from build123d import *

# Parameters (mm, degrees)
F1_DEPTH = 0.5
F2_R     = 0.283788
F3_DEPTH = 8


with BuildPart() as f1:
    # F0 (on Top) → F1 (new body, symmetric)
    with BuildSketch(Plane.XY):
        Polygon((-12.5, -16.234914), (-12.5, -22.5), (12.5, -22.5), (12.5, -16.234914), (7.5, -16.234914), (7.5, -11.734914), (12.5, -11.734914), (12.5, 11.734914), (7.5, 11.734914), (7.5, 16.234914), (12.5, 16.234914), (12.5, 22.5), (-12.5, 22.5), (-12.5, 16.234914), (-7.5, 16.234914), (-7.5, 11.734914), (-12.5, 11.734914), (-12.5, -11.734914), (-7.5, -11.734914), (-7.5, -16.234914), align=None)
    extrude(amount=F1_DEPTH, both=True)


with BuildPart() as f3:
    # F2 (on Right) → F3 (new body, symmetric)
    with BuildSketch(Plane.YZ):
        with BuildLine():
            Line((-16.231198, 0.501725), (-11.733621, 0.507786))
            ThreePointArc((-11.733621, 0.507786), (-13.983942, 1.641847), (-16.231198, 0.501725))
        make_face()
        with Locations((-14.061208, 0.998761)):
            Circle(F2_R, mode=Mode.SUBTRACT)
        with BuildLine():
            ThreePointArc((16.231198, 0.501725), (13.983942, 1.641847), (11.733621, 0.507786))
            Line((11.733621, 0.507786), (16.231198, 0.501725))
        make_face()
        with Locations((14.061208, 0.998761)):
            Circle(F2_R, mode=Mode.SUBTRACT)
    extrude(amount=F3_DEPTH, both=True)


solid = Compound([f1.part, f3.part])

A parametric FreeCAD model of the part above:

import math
import FreeCAD as App
import Part
import Sketcher
from FreeCAD import Vector


def add_polygon(sketch, points):
    """Adds a closed chain of lines whose ends are joined by coincident constraints."""
    first, n = sketch.GeometryCount, len(points)
    for a, b in zip(points, points[1:] + points[:1]):
        sketch.addGeometry(Part.LineSegment(App.Vector(*a, 0), App.Vector(*b, 0)), False)
    for i in range(n):
        sketch.addConstraint(Sketcher.Constraint("Coincident", first + i, 2, first + (i + 1) % n, 1))

doc = App.newDocument("Part")
body = doc.addObject("PartDesign::Body", "Body")

# Sketch on XY plane
sketch1 = body.newObject("Sketcher::SketchObject", "Sketch")
sketch1.AttachmentSupport = (doc.getObject("XY_Plane"), [""])
sketch1.MapMode = "FlatFace"
add_polygon(sketch1, [(-12.5, -16.234914), (-12.5, -22.5), (12.5, -22.5), (12.5, -16.234914), (7.5, -16.234914), (7.5, -11.734914), (12.5, -11.734914), (12.5, 11.734914), (7.5, 11.734914), (7.5, 16.234914), (12.5, 16.234914), (12.5, 22.5), (-12.5, 22.5), (-12.5, 16.234914), (-7.5, 16.234914), (-7.5, 11.734914), (-12.5, 11.734914), (-12.5, -11.734914), (-7.5, -11.734914), (-7.5, -16.234914)])  # lines 0-19
sketch1.addConstraint(Sketcher.Constraint("Vertical", 0))
sketch1.addConstraint(Sketcher.Constraint("Horizontal", 1))
sketch1.addConstraint(Sketcher.Constraint("Vertical", 2))
sketch1.addConstraint(Sketcher.Constraint("Horizontal", 3))
sketch1.addConstraint(Sketcher.Constraint("Vertical", 4))
sketch1.addConstraint(Sketcher.Constraint("Horizontal", 5))
sketch1.addConstraint(Sketcher.Constraint("Vertical", 6))
sketch1.addConstraint(Sketcher.Constraint("Horizontal", 7))
sketch1.addConstraint(Sketcher.Constraint("Vertical", 8))
sketch1.addConstraint(Sketcher.Constraint("Horizontal", 9))
sketch1.addConstraint(Sketcher.Constraint("Vertical", 10))
sketch1.addConstraint(Sketcher.Constraint("Horizontal", 11))
sketch1.addConstraint(Sketcher.Constraint("Vertical", 12))
sketch1.addConstraint(Sketcher.Constraint("Horizontal", 13))
sketch1.addConstraint(Sketcher.Constraint("Vertical", 14))
sketch1.addConstraint(Sketcher.Constraint("Horizontal", 15))
sketch1.addConstraint(Sketcher.Constraint("Vertical", 16))
sketch1.addConstraint(Sketcher.Constraint("Horizontal", 17))
sketch1.addConstraint(Sketcher.Constraint("Vertical", 18))
sketch1.addConstraint(Sketcher.Constraint("Horizontal", 19))
sketch1.addConstraint(Sketcher.Constraint("Symmetric", 0, 2, 10, 2, -1, 1))
sketch1.addConstraint(Sketcher.Constraint("Symmetric", 2, 2, 12, 2, -1, 1))
sketch1.addConstraint(Sketcher.Constraint("Symmetric", 4, 2, 14, 2, -1, 1))
sketch1.addConstraint(Sketcher.Constraint("Symmetric", 6, 2, 16, 2, -1, 1))
sketch1.addConstraint(Sketcher.Constraint("Symmetric", 8, 2, 18, 2, -1, 1))
sketch1.addConstraint(Sketcher.Constraint("Symmetric", 9, 2, 12, 2, -2))
sketch1.addConstraint(Sketcher.Constraint("Symmetric", 7, 2, 14, 2, -2))
sketch1.addConstraint(Sketcher.Constraint("Vertical", 2, 2, 5, 2))
sketch1.addConstraint(Sketcher.Constraint("DistanceX", 1, 1, 1, 2, 25.0))
sketch1.addConstraint(Sketcher.Constraint("DistanceX", 3, 2, 3, 1, 5.0))
sketch1.addConstraint(Sketcher.Constraint("DistanceY", 4, 1, 4, 2, 4.5))
sketch1.addConstraint(Sketcher.Constraint("DistanceY", 0, 2, -1, 1, 22.5))
sketch1.addConstraint(Sketcher.Constraint("DistanceY", 0, 2, 0, 1, 6.265086))
pad1 = body.newObject("PartDesign::Pad", "Pad")
pad1.Profile = sketch1
pad1.Length = 1
pad1.Midplane = True
body2 = doc.addObject("PartDesign::Body", "Body001")
body2.AllowCompound = True

# Sketch on YZ plane
sketch2 = body2.newObject("Sketcher::SketchObject", "Sketch001")
sketch2.AttachmentSupport = (doc.getObject("YZ_Plane001"), [""])
sketch2.MapMode = "FlatFace"
sketch2.addGeometry(Part.LineSegment(Vector(-16.231198, 0.501725, 0), Vector(-11.733621, 0.507786, 0)), False)
sketch2.addGeometry(Part.ArcOfCircle(Part.Circle(Vector(-13.980179, -1.150376, 0), Vector(0, 0, 1), 2.792226), math.radians(36.430669), math.radians(143.723756)), False)
sketch2.addGeometry(Part.Circle(Vector(-14.061208, 0.998761, 0), Vector(0, 0, 1), 0.283788), False)
sketch2.addGeometry(Part.ArcOfCircle(Part.Circle(Vector(13.980179, -1.150376, 0), Vector(0, 0, 1), 2.792226), math.radians(36.276244), math.radians(143.569331)), False)
sketch2.addGeometry(Part.LineSegment(Vector(11.733621, 0.507786, 0), Vector(16.231198, 0.501725, 0)), False)
sketch2.addGeometry(Part.Circle(Vector(14.061208, 0.998761, 0), Vector(0, 0, 1), 0.283788), False)
sketch2.addConstraint(Sketcher.Constraint("Coincident", 0, 1, 1, 2))
sketch2.addConstraint(Sketcher.Constraint("Coincident", 1, 1, 0, 2))
sketch2.addConstraint(Sketcher.Constraint("Coincident", 3, 1, 4, 2))
sketch2.addConstraint(Sketcher.Constraint("Coincident", 4, 1, 3, 2))
sketch2.addConstraint(Sketcher.Constraint("Equal", 1, 3))
sketch2.addConstraint(Sketcher.Constraint("Equal", 2, 5))
sketch2.addConstraint(Sketcher.Constraint("Symmetric", 1, 3, 3, 3, -2))
sketch2.addConstraint(Sketcher.Constraint("Symmetric", 2, 3, 5, 3, -2))
sketch2.addConstraint(Sketcher.Constraint("Horizontal", 0, 1, 3, 1))
sketch2.addConstraint(Sketcher.Constraint("Horizontal", 1, 1, 4, 1))
sketch2.addConstraint(Sketcher.Constraint("Diameter", 2, 0.567576))
sketch2.addConstraint(Sketcher.Constraint("Radius", 1, 2.792226))
sketch2.addConstraint(Sketcher.Constraint("DistanceY", 1, 3, 0, 1, 1.652101))
sketch2.addConstraint(Sketcher.Constraint("DistanceX", 1, 1, 3, 3, 25.7138))
sketch2.addConstraint(Sketcher.Constraint("Distance", 0, 4.497581))
sketch2.addConstraint(Sketcher.Constraint("DistanceY", -1, 1, 2, 3, 0.998761))
sketch2.addConstraint(Sketcher.Constraint("DistanceX", 2, 3, 1, 3, 0.081029))
sketch2.addConstraint(Sketcher.Constraint("DistanceY", 1, 3, -1, 1, 1.150376))
pad2 = body2.newObject("PartDesign::Pad", "Pad001")
pad2.Profile = sketch2
pad2.Length = 16
pad2.Midplane = True

doc.recompute()
